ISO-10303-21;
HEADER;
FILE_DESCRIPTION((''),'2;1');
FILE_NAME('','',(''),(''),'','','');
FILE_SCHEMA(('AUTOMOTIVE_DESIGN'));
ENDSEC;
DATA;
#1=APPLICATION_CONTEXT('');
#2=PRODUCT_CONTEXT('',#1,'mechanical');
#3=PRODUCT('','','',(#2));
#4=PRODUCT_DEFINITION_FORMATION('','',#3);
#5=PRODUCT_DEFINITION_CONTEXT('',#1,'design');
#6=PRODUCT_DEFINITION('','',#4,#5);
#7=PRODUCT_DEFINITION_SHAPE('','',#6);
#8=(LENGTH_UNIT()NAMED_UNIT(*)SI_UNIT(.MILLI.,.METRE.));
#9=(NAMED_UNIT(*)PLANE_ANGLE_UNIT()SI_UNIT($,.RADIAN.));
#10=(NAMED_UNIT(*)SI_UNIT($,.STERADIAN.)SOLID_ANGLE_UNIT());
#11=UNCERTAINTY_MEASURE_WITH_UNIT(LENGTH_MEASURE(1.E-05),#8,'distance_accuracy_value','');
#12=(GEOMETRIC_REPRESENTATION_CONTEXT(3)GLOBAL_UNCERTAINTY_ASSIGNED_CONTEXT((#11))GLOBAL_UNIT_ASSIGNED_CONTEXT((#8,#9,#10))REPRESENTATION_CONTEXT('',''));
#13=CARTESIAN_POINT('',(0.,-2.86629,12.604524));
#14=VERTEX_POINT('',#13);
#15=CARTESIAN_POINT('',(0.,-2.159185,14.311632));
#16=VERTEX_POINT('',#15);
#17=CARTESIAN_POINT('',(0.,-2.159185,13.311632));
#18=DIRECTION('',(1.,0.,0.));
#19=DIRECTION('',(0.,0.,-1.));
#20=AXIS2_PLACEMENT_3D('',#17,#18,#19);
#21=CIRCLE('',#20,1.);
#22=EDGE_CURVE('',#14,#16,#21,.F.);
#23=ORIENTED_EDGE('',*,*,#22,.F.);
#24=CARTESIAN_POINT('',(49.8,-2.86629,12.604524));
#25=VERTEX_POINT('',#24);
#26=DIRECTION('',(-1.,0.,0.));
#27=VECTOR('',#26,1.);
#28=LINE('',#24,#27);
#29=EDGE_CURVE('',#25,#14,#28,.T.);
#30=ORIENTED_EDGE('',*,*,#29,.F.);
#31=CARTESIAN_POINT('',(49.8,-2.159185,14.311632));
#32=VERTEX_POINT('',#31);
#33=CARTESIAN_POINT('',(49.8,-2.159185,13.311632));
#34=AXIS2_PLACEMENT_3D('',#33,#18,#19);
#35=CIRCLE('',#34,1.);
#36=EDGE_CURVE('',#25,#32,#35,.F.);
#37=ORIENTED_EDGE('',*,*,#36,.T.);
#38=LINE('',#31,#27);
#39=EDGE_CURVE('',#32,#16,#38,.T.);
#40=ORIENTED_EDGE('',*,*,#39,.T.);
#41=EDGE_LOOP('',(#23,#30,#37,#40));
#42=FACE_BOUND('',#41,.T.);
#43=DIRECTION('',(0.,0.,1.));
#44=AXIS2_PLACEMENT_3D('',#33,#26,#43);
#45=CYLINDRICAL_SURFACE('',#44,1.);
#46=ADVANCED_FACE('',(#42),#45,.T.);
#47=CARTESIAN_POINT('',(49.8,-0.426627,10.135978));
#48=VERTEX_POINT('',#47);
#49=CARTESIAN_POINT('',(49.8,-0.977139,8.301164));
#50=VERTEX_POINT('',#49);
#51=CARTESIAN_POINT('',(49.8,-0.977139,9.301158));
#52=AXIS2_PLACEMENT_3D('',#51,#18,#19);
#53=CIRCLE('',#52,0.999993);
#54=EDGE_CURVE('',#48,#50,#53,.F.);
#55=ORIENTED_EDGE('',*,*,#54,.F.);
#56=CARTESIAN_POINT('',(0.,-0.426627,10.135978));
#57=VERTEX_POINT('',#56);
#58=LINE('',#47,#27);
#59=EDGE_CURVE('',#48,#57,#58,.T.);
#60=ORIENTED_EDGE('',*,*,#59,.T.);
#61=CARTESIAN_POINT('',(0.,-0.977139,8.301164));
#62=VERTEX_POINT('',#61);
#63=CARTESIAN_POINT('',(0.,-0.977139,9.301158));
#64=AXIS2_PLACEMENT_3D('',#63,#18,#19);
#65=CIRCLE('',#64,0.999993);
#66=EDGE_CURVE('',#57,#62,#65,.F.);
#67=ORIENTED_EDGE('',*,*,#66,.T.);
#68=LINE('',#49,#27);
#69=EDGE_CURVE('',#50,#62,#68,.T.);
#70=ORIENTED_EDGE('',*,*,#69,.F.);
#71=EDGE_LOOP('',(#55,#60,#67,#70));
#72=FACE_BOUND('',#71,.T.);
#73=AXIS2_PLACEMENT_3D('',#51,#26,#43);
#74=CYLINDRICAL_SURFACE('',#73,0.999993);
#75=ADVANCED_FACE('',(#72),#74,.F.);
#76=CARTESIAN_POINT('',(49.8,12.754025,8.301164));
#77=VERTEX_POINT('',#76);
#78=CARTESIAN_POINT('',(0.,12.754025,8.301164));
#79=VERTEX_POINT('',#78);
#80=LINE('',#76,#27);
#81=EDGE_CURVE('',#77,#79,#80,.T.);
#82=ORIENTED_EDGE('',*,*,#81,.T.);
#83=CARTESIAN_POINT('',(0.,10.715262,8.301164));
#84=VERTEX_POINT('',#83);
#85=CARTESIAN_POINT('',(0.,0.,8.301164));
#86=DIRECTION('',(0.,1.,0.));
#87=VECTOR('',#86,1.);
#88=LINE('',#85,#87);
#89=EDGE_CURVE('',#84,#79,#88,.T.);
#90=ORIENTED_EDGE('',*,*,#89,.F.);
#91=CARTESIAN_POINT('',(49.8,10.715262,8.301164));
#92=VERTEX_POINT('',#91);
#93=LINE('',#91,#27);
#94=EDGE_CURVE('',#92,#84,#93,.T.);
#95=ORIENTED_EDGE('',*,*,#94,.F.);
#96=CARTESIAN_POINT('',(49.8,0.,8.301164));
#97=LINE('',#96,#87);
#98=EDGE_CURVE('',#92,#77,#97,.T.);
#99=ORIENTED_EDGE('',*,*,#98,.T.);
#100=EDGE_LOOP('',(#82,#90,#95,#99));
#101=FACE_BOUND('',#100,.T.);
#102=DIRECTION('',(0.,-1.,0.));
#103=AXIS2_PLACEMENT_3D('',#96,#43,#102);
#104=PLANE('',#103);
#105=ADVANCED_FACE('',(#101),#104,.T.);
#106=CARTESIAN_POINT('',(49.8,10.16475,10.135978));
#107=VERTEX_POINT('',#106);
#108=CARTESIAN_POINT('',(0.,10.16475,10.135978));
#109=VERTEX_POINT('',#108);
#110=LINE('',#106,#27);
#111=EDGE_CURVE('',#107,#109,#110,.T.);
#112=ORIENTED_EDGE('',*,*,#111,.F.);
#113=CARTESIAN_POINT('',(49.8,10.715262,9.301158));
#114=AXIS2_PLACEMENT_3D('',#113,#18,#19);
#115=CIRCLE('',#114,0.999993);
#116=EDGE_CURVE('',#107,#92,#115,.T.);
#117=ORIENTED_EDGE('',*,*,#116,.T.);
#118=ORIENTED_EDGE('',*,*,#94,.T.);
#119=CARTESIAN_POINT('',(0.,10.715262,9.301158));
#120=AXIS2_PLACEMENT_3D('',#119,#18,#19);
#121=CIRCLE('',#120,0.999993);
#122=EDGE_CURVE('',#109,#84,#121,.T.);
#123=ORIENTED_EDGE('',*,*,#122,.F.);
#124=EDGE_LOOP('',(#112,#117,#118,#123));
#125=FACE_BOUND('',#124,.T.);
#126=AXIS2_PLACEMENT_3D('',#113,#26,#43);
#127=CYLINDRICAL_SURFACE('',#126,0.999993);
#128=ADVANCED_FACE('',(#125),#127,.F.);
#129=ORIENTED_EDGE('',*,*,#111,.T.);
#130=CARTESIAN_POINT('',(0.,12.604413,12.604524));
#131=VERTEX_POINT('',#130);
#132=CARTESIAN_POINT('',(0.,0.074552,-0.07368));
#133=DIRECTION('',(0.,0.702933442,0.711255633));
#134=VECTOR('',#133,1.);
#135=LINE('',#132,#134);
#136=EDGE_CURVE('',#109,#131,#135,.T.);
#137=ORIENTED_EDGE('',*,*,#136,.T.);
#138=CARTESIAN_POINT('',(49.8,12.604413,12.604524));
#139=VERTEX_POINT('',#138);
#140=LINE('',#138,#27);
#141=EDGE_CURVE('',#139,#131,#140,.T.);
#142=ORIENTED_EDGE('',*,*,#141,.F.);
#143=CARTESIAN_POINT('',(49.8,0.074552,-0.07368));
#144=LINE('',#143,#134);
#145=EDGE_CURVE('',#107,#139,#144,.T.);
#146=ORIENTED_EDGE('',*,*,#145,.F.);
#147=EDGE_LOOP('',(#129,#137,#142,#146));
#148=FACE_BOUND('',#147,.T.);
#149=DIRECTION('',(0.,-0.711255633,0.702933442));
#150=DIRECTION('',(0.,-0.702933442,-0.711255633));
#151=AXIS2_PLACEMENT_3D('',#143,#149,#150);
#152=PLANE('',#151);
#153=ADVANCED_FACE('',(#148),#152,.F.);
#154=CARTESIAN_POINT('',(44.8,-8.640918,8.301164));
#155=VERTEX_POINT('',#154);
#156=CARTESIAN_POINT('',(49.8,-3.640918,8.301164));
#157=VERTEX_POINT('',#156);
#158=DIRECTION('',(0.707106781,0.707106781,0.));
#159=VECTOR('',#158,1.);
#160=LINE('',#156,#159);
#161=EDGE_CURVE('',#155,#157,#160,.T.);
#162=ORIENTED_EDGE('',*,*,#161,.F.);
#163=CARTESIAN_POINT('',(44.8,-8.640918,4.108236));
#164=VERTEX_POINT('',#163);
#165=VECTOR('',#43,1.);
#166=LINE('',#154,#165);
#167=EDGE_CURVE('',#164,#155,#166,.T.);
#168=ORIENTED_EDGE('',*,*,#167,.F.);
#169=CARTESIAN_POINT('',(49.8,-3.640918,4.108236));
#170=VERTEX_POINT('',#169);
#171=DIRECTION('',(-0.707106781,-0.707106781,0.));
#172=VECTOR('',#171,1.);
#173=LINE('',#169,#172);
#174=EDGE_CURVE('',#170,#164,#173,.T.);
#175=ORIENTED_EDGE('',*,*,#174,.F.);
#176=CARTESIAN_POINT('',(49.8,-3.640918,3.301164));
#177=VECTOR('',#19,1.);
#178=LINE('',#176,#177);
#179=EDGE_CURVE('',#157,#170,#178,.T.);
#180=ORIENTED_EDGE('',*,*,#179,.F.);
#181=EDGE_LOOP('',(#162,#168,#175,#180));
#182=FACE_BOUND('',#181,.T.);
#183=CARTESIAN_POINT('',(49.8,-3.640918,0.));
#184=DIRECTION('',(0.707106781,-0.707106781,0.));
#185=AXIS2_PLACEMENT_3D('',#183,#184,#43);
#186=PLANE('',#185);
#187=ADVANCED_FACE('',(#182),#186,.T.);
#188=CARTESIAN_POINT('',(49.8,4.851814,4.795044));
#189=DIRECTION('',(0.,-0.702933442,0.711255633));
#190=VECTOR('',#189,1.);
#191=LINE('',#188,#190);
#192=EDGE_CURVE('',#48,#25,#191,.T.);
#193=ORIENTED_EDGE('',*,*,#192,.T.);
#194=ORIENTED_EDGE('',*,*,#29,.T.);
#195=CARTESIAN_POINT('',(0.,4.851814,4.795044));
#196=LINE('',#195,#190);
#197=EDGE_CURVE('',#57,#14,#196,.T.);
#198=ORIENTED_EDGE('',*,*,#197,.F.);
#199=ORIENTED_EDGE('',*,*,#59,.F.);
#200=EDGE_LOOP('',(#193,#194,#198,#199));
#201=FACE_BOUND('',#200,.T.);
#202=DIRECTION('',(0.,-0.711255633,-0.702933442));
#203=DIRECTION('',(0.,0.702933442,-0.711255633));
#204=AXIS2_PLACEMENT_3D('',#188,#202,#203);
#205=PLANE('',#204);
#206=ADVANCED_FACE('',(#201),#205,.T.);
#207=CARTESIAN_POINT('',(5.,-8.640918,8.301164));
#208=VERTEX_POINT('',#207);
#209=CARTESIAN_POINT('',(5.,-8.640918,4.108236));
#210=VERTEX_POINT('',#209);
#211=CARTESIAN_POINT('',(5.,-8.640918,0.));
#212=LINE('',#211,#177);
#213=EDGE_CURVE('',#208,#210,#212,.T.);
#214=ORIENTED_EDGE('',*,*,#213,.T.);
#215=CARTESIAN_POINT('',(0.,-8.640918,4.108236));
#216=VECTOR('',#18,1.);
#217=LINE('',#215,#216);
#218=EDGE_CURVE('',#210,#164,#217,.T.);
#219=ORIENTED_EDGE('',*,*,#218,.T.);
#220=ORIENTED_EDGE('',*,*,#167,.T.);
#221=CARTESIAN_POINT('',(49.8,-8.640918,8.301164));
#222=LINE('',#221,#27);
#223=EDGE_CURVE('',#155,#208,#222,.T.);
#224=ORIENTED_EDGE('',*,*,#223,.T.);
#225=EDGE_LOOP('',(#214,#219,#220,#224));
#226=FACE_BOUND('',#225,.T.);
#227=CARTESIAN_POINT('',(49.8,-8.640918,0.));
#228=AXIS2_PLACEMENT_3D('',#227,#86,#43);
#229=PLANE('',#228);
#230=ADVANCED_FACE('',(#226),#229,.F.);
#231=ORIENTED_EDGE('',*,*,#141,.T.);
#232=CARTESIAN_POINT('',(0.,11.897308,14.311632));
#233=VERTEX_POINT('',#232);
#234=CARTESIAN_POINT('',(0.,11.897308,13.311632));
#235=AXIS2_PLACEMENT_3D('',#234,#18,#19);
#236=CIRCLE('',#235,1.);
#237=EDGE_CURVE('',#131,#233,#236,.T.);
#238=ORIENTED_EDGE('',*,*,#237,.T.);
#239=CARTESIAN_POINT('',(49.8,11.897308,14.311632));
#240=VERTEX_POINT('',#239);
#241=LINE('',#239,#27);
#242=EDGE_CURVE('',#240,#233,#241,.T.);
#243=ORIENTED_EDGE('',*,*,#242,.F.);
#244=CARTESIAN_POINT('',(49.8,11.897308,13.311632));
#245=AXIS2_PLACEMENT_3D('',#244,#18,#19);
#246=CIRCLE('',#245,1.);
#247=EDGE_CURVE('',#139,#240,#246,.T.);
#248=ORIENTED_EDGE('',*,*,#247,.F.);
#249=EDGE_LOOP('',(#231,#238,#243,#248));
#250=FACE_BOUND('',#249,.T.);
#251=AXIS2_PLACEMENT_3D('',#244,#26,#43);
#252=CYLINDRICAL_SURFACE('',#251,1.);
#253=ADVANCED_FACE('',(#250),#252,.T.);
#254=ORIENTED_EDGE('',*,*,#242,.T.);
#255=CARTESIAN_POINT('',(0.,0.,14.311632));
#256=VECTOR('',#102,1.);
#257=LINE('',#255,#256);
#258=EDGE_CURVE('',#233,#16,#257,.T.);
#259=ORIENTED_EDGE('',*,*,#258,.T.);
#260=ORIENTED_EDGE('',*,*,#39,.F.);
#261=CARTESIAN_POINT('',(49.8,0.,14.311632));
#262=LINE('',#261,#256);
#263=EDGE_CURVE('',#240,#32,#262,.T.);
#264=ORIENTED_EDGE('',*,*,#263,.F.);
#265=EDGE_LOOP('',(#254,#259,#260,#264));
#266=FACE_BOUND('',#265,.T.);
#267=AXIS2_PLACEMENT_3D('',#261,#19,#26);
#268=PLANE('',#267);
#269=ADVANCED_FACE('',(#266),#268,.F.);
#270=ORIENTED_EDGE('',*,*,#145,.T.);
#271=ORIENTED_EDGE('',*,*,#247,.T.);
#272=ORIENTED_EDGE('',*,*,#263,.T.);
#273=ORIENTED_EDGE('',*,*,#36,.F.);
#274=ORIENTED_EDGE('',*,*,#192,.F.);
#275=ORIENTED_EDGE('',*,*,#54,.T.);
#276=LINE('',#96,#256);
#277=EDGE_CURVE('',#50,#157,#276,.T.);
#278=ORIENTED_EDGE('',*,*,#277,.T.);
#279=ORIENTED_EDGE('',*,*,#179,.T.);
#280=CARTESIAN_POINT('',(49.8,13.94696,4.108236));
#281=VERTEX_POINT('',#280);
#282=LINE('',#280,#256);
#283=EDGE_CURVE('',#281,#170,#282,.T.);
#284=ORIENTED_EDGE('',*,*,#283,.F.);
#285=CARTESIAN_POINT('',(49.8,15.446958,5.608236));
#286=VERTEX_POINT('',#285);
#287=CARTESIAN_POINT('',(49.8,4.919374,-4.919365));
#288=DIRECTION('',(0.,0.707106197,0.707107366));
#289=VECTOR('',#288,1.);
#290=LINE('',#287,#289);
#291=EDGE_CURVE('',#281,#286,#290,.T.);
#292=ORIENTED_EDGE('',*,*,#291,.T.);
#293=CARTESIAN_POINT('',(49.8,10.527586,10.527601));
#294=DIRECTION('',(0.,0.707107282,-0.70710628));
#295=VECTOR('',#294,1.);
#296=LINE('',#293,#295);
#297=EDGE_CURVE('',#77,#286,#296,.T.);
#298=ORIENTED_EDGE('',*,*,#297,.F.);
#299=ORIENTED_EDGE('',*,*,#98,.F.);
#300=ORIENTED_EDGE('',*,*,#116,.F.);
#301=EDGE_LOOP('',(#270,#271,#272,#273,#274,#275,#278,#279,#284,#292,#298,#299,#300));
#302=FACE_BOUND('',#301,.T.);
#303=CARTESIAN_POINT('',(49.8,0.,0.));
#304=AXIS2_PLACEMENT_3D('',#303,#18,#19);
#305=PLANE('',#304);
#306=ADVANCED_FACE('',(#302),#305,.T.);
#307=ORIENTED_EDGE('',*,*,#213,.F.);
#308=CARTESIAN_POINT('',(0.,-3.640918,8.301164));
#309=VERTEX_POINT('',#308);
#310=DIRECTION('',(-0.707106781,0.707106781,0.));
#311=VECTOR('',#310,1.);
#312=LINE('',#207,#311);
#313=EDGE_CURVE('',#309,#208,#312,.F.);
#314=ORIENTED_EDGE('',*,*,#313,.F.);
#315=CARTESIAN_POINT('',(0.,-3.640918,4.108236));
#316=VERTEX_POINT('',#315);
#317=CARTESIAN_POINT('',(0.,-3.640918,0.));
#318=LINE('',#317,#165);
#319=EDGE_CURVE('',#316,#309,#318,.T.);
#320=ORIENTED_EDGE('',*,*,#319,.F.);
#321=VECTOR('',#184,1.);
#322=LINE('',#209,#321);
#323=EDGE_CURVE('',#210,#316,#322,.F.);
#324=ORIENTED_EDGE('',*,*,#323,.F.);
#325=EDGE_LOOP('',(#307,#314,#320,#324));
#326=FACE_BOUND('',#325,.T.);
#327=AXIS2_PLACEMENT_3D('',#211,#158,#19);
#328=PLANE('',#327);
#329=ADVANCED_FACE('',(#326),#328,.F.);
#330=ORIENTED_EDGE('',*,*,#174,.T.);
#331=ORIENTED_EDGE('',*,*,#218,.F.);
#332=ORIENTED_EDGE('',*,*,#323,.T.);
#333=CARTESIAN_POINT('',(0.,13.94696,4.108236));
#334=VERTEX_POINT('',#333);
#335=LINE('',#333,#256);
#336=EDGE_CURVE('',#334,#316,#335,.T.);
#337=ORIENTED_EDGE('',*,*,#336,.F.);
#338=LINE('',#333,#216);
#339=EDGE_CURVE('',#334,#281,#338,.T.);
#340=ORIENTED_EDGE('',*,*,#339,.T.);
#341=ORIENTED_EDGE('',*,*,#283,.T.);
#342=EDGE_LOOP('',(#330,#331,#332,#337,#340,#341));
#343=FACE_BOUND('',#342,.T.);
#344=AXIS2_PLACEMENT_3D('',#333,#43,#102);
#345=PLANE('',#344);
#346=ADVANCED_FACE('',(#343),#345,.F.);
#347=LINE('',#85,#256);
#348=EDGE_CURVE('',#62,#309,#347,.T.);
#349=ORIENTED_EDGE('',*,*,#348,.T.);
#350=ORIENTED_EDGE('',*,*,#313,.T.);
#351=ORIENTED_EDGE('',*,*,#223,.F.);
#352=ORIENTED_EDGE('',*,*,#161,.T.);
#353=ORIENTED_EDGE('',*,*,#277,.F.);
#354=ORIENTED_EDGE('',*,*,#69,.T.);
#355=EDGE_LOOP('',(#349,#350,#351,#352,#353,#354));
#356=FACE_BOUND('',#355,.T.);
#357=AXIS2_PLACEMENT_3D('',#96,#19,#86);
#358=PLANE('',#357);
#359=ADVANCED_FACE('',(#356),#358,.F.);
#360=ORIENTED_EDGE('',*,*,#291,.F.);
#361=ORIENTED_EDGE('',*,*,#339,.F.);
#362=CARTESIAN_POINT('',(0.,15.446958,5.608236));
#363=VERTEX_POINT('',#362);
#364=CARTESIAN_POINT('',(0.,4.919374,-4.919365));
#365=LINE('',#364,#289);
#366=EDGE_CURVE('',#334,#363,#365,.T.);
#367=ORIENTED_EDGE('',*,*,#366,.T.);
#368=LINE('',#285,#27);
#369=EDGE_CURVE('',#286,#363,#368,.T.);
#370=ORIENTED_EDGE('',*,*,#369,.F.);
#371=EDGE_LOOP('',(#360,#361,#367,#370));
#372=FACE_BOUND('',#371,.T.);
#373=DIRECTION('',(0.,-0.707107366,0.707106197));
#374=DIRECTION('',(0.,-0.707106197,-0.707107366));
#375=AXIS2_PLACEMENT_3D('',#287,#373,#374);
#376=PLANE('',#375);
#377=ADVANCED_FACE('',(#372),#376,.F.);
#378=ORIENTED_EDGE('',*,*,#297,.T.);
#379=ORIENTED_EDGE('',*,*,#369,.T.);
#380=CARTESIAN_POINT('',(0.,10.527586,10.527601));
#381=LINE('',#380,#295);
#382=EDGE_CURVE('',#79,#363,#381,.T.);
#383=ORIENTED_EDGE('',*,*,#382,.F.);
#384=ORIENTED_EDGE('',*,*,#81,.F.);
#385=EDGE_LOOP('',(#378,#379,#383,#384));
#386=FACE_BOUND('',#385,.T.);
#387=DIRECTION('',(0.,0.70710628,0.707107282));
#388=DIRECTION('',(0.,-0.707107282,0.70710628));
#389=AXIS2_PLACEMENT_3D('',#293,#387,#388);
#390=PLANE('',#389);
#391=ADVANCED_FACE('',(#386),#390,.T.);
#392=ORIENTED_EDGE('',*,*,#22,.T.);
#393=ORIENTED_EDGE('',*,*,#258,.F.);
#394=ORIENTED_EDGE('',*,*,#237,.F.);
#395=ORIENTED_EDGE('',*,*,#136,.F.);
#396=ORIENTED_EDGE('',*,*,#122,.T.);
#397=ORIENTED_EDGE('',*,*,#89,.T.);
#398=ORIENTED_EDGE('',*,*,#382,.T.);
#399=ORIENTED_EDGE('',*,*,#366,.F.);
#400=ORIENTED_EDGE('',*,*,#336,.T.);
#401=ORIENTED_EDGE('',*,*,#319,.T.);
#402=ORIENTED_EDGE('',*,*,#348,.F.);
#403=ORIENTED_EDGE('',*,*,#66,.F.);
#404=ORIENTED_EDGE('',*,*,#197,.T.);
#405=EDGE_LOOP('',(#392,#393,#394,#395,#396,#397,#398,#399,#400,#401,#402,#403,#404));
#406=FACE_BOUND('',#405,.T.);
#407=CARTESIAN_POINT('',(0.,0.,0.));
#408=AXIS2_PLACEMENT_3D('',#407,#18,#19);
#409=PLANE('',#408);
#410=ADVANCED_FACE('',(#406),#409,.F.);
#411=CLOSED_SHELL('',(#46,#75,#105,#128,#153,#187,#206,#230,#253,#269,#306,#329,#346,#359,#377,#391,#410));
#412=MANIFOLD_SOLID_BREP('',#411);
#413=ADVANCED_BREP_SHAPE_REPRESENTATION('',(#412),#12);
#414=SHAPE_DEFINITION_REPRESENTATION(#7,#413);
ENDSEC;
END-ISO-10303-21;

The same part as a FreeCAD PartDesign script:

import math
import FreeCAD as App
import Part
import Sketcher


def edges_at(feature, points):
    """Names of the edges that pass closest to the given points."""
    edges = feature.Shape.Edges
    near = lambda p: min(range(len(edges)), key=lambda i: edges[i].distToShape(Part.Vertex(*p))[0])
    return sorted({f"Edge{near(p) + 1}" for p in points})


def add_polygon(sketch, points):
    """Adds a closed chain of lines whose ends are joined by coincident constraints."""
    first, n = sketch.GeometryCount, len(points)
    for a, b in zip(points, points[1:] + points[:1]):
        sketch.addGeometry(Part.LineSegment(App.Vector(*a, 0), App.Vector(*b, 0)), False)
    for i in range(n):
        sketch.addConstraint(Sketcher.Constraint("Coincident", first + i, 2, first + (i + 1) % n, 1))

doc = App.newDocument("Part")
body = doc.addObject("PartDesign::Body", "Body")

sketch1 = body.newObject("Sketcher::SketchObject", "Sketch")
sketch1.AttachmentSupport = (doc.getObject("YZ_Plane"), [""])
sketch1.MapMode = "FlatFace"
sketch1.addGeometry(Part.ArcOfCircle(Part.Circle(App.Vector(-2.16, 13.31, 0), App.Vector(0, 0, 1), 1), math.radians(90), math.radians(225)), False)
sketch1.addGeometry(Part.LineSegment(App.Vector(-2.87, 12.6, 0), App.Vector(-0.43, 10.14, 0)), False)
sketch1.addGeometry(Part.ArcOfCircle(Part.Circle(App.Vector(-0.98, 9.3, 0), App.Vector(0, 0, 1), 1), math.radians(33), math.radians(57)), False)
sketch1.addGeometry(Part.ArcOfCircle(Part.Circle(App.Vector(-0.98, 9.3, 0), App.Vector(0, 0, 1), 1), math.radians(-90), math.radians(33)), False)
sketch1.addGeometry(Part.LineSegment(App.Vector(-0.98, 8.3, 0), App.Vector(-8.64, 8.3, 0)), False)
sketch1.addGeometry(Part.LineSegment(App.Vector(-8.64, 8.3, 0), App.Vector(-8.64, 3.3, 0)), False)
sketch1.addGeometry(Part.LineSegment(App.Vector(-8.64, 3.3, 0), App.Vector(13.14, 3.3, 0)), False)
sketch1.addGeometry(Part.LineSegment(App.Vector(13.14, 3.3, 0), App.Vector(15.45, 5.61, 0)), False)
sketch1.addGeometry(Part.LineSegment(App.Vector(15.45, 5.61, 0), App.Vector(12.75, 8.3, 0)), False)
sketch1.addGeometry(Part.LineSegment(App.Vector(12.75, 8.3, 0), App.Vector(10.72, 8.3, 0)), False)
sketch1.addGeometry(Part.ArcOfCircle(Part.Circle(App.Vector(10.72, 9.3, 0), App.Vector(0, 0, 1), 1), math.radians(147), math.radians(270)), False)
sketch1.addGeometry(Part.ArcOfCircle(Part.Circle(App.Vector(10.72, 9.3, 0), App.Vector(0, 0, 1), 1), math.radians(123), math.radians(147)), False)
sketch1.addGeometry(Part.LineSegment(App.Vector(10.16, 10.14, 0), App.Vector(12.6, 12.6, 0)), False)
sketch1.addGeometry(Part.ArcOfCircle(Part.Circle(App.Vector(11.9, 13.31, 0), App.Vector(0, 0, 1), 1), math.radians(-45), math.radians(90)), False)
sketch1.addGeometry(Part.LineSegment(App.Vector(11.9, 14.31, 0), App.Vector(-2.16, 14.31, 0)), False)
sketch1.addConstraint(Sketcher.Constraint("Coincident", 0, 2, 1, 1))
sketch1.addConstraint(Sketcher.Constraint("Coincident", 1, 2, 2, 2))
sketch1.addConstraint(Sketcher.Constraint("Tangent", 2, 1, 3, 2))
sketch1.addConstraint(Sketcher.Constraint("Tangent", 3, 1, 4, 1))
sketch1.addConstraint(Sketcher.Constraint("Coincident", 4, 2, 5, 1))
sketch1.addConstraint(Sketcher.Constraint("Coincident", 5, 2, 6, 1))
sketch1.addConstraint(Sketcher.Constraint("Coincident", 6, 2, 7, 1))
sketch1.addConstraint(Sketcher.Constraint("Coincident", 7, 2, 8, 1))
sketch1.addConstraint(Sketcher.Constraint("Coincident", 8, 2, 9, 1))
sketch1.addConstraint(Sketcher.Constraint("Tangent", 9, 2, 10, 2))
sketch1.addConstraint(Sketcher.Constraint("Tangent", 10, 1, 11, 2))
sketch1.addConstraint(Sketcher.Constraint("Coincident", 11, 1, 12, 1))
sketch1.addConstraint(Sketcher.Constraint("Coincident", 12, 2, 13, 1))
sketch1.addConstraint(Sketcher.Constraint("Tangent", 13, 2, 14, 1))
sketch1.addConstraint(Sketcher.Constraint("Tangent", 14, 2, 0, 1))
sketch1.addConstraint(Sketcher.Constraint("Horizontal", 4))
sketch1.addConstraint(Sketcher.Constraint("Vertical", 5))
sketch1.addConstraint(Sketcher.Constraint("Horizontal", 6))
sketch1.addConstraint(Sketcher.Constraint("Horizontal", 9))
sketch1.addConstraint(Sketcher.Constraint("Horizontal", 14))
sketch1.addConstraint(Sketcher.Constraint("Equal", 2, 3))
sketch1.addConstraint(Sketcher.Constraint("Equal", 3, 10))
sketch1.addConstraint(Sketcher.Constraint("Equal", 10, 11))
sketch1.addConstraint(Sketcher.Constraint("Equal", 0, 13))
sketch1.addConstraint(Sketcher.Constraint("Perpendicular", 7, 8))
sketch1.addConstraint(Sketcher.Constraint("Horizontal", 3, 3, 10, 3))
sketch1.addConstraint(Sketcher.Constraint("Horizontal", 2, 1, 10, 1))
sketch1.addConstraint(Sketcher.Constraint("Horizontal", 1, 2, 11, 1))
sketch1.addConstraint(Sketcher.Constraint("Horizontal", 0, 2, 12, 2))
sketch1.addConstraint(Sketcher.Constraint("Equal", 1, 12))
sketch1.addConstraint(Sketcher.Constraint("Radius", 0, 1.0))
sketch1.addConstraint(Sketcher.Constraint("DistanceY", 5, 2, 5, 1, 5.0))
sketch1.addConstraint(Sketcher.Constraint("Radius", 2, 0.999994))
sketch1.addConstraint(Sketcher.Constraint("DistanceX", 4, 2, 4, 1, 7.663779))
sketch1.addConstraint(Sketcher.Constraint("DistanceX", 3, 3, 10, 3, 11.6924))
sketch1.addConstraint(Sketcher.Constraint("Distance", 1, 3.470689))
sketch1.addConstraint(Sketcher.Constraint("Distance", 7, 3.262689))
sketch1.addConstraint(Sketcher.Constraint("Distance", 8, 3.808378))
sketch1.addConstraint(Sketcher.Constraint("DistanceX", 6, 1, 6, 2, 21.780807))
sketch1.addConstraint(Sketcher.Constraint("DistanceX", 14, 2, 14, 1, 14.056492))
sketch1.addConstraint(Sketcher.Constraint("DistanceX", 2, 3, -1, 1, 0.977139))
sketch1.addConstraint(Sketcher.Constraint("DistanceX", 0, 2, -1, 1, 2.86629))
sketch1.addConstraint(Sketcher.Constraint("DistanceX", -1, 1, 10, 1, 9.874021))
sketch1.addConstraint(Sketcher.Constraint("DistanceX", -1, 1, 11, 1, 10.16475))
sketch1.addConstraint(Sketcher.Constraint("DistanceY", -1, 1, 13, 2, 14.311632))
pad1 = body.newObject("PartDesign::Pad", "Pad")
pad1.Profile = sketch1
pad1.Length = 49.8
doc.recompute()

chamfer = body.newObject("PartDesign::Chamfer", "Chamfer")
chamfer.Base = (pad1, edges_at(pad1, [(0, -8.641, 5.801), (49.8, -8.641, 5.801)]))
chamfer.Size = 5

sketch2 = body.newObject("Sketcher::SketchObject", "Sketch001")
sketch2.AttachmentSupport = (doc.getObject("YZ_Plane"), [""])
sketch2.MapMode = "FlatFace"
sketch2.AttachmentOffset = App.Placement(App.Vector(0, 0, 49.8), App.Rotation())
add_polygon(sketch2, [(13.9, 4.1), (-8.6, 4.1), (-8.6, 3.3), (13.9, 3.3)])
sketch2.addConstraint(Sketcher.Constraint("Horizontal", 0))
sketch2.addConstraint(Sketcher.Constraint("Vertical", 1))
sketch2.addConstraint(Sketcher.Constraint("Horizontal", 2))
sketch2.addConstraint(Sketcher.Constraint("Vertical", 3))
sketch2.addConstraint(Sketcher.Constraint("DistanceY", 1, 2, 1, 1, 0.807072))
sketch2.addConstraint(Sketcher.Constraint("DistanceX", 0, 2, 0, 1, 22.587878))
sketch2.addConstraint(Sketcher.Constraint("DistanceX", -1, 1, 2, 2, 13.94696))
sketch2.addConstraint(Sketcher.Constraint("DistanceY", -1, 1, 0, 2, 4.108236))
pocket1 = body.newObject("PartDesign::Pocket", "Pocket")
pocket1.Profile = sketch2
pocket1.Length = 49.8

doc.recompute()
